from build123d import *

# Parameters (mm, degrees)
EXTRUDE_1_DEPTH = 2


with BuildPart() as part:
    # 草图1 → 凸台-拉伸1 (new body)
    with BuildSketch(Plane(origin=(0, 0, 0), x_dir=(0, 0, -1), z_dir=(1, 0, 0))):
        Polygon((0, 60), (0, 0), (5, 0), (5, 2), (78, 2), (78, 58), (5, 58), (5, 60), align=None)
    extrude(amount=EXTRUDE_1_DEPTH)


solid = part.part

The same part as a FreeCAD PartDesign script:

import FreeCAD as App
import Part
import Sketcher
from FreeCAD import Vector

doc = App.newDocument("Part")
body = doc.addObject("PartDesign::Body", "Body")

# Sketch on YZ plane
sketch1 = doc.addObject("Sketcher::SketchObject", "Sketch")
body.addObject(sketch1)
sketch1.AttachmentSupport = (doc.YZ_Plane, [""])
sketch1.MapMode = "FlatFace"
sketch1.addGeometry(Part.LineSegment(Vector(60, 0, 0), Vector(0, 0, 0)), False)
sketch1.addGeometry(Part.LineSegment(Vector(0, 0, 0), Vector(0, -5, 0)), False)
sketch1.addGeometry(Part.LineSegment(Vector(0, -5, 0), Vector(2, -5, 0)), False)
sketch1.addGeometry(Part.LineSegment(Vector(2, -5, 0), Vector(2, -78, 0)), False)
sketch1.addGeometry(Part.LineSegment(Vector(2, -78, 0), Vector(58, -78, 0)), False)
sketch1.addGeometry(Part.LineSegment(Vector(58, -78, 0), Vector(58, -5, 0)), False)
sketch1.addGeometry(Part.LineSegment(Vector(58, -5, 0), Vector(60, -5, 0)), False)
sketch1.addGeometry(Part.LineSegment(Vector(60, -5, 0), Vector(60, 0, 0)), False)
sketch1.addConstraint(Sketcher.Constraint("Coincident", 0, 2, 1, 1))
sketch1.addConstraint(Sketcher.Constraint("Coincident", 1, 2, 2, 1))
sketch1.addConstraint(Sketcher.Constraint("Coincident", 2, 2, 3, 1))
sketch1.addConstraint(Sketcher.Constraint("Coincident", 3, 2, 4, 1))
sketch1.addConstraint(Sketcher.Constraint("Coincident", 4, 2, 5, 1))
sketch1.addConstraint(Sketcher.Constraint("Coincident", 5, 2, 6, 1))
sketch1.addConstraint(Sketcher.Constraint("Coincident", 6, 2, 7, 1))
sketch1.addConstraint(Sketcher.Constraint("Coincident", 7, 2, 0, 1))
sketch1.addConstraint(Sketcher.Constraint("Horizontal", 0))
sketch1.addConstraint(Sketcher.Constraint("Vertical", 1))
sketch1.addConstraint(Sketcher.Constraint("Horizontal", 2))
sketch1.addConstraint(Sketcher.Constraint("Vertical", 3))
sketch1.addConstraint(Sketcher.Constraint("Horizontal", 4))
sketch1.addConstraint(Sketcher.Constraint("Vertical", 5))
sketch1.addConstraint(Sketcher.Constraint("Horizontal", 6))
sketch1.addConstraint(Sketcher.Constraint("Vertical", 7))
sketch1.addConstraint(Sketcher.Constraint("Coincident", 0, 2, -1, 1))
sketch1.addConstraint(Sketcher.Constraint("Horizontal", 2, 2, 5, 2))
sketch1.addConstraint(Sketcher.Constraint("Equal", 2, 6))
sketch1.addConstraint(Sketcher.Constraint("DistanceX", 0, 2, 0, 1, 60.0))
sketch1.addConstraint(Sketcher.Constraint("DistanceX", 2, 1, 2, 2, 2.0))
sketch1.addConstraint(Sketcher.Constraint("DistanceY", 1, 2, 1, 1, 5.0))
sketch1.addConstraint(Sketcher.Constraint("DistanceY", 3, 2, 3, 1, 73.0))
pad1 = doc.addObject("PartDesign::Pad", "Pad")
body.addObject(pad1)
pad1.Profile = sketch1
pad1.Length = 2

doc.recompute()
